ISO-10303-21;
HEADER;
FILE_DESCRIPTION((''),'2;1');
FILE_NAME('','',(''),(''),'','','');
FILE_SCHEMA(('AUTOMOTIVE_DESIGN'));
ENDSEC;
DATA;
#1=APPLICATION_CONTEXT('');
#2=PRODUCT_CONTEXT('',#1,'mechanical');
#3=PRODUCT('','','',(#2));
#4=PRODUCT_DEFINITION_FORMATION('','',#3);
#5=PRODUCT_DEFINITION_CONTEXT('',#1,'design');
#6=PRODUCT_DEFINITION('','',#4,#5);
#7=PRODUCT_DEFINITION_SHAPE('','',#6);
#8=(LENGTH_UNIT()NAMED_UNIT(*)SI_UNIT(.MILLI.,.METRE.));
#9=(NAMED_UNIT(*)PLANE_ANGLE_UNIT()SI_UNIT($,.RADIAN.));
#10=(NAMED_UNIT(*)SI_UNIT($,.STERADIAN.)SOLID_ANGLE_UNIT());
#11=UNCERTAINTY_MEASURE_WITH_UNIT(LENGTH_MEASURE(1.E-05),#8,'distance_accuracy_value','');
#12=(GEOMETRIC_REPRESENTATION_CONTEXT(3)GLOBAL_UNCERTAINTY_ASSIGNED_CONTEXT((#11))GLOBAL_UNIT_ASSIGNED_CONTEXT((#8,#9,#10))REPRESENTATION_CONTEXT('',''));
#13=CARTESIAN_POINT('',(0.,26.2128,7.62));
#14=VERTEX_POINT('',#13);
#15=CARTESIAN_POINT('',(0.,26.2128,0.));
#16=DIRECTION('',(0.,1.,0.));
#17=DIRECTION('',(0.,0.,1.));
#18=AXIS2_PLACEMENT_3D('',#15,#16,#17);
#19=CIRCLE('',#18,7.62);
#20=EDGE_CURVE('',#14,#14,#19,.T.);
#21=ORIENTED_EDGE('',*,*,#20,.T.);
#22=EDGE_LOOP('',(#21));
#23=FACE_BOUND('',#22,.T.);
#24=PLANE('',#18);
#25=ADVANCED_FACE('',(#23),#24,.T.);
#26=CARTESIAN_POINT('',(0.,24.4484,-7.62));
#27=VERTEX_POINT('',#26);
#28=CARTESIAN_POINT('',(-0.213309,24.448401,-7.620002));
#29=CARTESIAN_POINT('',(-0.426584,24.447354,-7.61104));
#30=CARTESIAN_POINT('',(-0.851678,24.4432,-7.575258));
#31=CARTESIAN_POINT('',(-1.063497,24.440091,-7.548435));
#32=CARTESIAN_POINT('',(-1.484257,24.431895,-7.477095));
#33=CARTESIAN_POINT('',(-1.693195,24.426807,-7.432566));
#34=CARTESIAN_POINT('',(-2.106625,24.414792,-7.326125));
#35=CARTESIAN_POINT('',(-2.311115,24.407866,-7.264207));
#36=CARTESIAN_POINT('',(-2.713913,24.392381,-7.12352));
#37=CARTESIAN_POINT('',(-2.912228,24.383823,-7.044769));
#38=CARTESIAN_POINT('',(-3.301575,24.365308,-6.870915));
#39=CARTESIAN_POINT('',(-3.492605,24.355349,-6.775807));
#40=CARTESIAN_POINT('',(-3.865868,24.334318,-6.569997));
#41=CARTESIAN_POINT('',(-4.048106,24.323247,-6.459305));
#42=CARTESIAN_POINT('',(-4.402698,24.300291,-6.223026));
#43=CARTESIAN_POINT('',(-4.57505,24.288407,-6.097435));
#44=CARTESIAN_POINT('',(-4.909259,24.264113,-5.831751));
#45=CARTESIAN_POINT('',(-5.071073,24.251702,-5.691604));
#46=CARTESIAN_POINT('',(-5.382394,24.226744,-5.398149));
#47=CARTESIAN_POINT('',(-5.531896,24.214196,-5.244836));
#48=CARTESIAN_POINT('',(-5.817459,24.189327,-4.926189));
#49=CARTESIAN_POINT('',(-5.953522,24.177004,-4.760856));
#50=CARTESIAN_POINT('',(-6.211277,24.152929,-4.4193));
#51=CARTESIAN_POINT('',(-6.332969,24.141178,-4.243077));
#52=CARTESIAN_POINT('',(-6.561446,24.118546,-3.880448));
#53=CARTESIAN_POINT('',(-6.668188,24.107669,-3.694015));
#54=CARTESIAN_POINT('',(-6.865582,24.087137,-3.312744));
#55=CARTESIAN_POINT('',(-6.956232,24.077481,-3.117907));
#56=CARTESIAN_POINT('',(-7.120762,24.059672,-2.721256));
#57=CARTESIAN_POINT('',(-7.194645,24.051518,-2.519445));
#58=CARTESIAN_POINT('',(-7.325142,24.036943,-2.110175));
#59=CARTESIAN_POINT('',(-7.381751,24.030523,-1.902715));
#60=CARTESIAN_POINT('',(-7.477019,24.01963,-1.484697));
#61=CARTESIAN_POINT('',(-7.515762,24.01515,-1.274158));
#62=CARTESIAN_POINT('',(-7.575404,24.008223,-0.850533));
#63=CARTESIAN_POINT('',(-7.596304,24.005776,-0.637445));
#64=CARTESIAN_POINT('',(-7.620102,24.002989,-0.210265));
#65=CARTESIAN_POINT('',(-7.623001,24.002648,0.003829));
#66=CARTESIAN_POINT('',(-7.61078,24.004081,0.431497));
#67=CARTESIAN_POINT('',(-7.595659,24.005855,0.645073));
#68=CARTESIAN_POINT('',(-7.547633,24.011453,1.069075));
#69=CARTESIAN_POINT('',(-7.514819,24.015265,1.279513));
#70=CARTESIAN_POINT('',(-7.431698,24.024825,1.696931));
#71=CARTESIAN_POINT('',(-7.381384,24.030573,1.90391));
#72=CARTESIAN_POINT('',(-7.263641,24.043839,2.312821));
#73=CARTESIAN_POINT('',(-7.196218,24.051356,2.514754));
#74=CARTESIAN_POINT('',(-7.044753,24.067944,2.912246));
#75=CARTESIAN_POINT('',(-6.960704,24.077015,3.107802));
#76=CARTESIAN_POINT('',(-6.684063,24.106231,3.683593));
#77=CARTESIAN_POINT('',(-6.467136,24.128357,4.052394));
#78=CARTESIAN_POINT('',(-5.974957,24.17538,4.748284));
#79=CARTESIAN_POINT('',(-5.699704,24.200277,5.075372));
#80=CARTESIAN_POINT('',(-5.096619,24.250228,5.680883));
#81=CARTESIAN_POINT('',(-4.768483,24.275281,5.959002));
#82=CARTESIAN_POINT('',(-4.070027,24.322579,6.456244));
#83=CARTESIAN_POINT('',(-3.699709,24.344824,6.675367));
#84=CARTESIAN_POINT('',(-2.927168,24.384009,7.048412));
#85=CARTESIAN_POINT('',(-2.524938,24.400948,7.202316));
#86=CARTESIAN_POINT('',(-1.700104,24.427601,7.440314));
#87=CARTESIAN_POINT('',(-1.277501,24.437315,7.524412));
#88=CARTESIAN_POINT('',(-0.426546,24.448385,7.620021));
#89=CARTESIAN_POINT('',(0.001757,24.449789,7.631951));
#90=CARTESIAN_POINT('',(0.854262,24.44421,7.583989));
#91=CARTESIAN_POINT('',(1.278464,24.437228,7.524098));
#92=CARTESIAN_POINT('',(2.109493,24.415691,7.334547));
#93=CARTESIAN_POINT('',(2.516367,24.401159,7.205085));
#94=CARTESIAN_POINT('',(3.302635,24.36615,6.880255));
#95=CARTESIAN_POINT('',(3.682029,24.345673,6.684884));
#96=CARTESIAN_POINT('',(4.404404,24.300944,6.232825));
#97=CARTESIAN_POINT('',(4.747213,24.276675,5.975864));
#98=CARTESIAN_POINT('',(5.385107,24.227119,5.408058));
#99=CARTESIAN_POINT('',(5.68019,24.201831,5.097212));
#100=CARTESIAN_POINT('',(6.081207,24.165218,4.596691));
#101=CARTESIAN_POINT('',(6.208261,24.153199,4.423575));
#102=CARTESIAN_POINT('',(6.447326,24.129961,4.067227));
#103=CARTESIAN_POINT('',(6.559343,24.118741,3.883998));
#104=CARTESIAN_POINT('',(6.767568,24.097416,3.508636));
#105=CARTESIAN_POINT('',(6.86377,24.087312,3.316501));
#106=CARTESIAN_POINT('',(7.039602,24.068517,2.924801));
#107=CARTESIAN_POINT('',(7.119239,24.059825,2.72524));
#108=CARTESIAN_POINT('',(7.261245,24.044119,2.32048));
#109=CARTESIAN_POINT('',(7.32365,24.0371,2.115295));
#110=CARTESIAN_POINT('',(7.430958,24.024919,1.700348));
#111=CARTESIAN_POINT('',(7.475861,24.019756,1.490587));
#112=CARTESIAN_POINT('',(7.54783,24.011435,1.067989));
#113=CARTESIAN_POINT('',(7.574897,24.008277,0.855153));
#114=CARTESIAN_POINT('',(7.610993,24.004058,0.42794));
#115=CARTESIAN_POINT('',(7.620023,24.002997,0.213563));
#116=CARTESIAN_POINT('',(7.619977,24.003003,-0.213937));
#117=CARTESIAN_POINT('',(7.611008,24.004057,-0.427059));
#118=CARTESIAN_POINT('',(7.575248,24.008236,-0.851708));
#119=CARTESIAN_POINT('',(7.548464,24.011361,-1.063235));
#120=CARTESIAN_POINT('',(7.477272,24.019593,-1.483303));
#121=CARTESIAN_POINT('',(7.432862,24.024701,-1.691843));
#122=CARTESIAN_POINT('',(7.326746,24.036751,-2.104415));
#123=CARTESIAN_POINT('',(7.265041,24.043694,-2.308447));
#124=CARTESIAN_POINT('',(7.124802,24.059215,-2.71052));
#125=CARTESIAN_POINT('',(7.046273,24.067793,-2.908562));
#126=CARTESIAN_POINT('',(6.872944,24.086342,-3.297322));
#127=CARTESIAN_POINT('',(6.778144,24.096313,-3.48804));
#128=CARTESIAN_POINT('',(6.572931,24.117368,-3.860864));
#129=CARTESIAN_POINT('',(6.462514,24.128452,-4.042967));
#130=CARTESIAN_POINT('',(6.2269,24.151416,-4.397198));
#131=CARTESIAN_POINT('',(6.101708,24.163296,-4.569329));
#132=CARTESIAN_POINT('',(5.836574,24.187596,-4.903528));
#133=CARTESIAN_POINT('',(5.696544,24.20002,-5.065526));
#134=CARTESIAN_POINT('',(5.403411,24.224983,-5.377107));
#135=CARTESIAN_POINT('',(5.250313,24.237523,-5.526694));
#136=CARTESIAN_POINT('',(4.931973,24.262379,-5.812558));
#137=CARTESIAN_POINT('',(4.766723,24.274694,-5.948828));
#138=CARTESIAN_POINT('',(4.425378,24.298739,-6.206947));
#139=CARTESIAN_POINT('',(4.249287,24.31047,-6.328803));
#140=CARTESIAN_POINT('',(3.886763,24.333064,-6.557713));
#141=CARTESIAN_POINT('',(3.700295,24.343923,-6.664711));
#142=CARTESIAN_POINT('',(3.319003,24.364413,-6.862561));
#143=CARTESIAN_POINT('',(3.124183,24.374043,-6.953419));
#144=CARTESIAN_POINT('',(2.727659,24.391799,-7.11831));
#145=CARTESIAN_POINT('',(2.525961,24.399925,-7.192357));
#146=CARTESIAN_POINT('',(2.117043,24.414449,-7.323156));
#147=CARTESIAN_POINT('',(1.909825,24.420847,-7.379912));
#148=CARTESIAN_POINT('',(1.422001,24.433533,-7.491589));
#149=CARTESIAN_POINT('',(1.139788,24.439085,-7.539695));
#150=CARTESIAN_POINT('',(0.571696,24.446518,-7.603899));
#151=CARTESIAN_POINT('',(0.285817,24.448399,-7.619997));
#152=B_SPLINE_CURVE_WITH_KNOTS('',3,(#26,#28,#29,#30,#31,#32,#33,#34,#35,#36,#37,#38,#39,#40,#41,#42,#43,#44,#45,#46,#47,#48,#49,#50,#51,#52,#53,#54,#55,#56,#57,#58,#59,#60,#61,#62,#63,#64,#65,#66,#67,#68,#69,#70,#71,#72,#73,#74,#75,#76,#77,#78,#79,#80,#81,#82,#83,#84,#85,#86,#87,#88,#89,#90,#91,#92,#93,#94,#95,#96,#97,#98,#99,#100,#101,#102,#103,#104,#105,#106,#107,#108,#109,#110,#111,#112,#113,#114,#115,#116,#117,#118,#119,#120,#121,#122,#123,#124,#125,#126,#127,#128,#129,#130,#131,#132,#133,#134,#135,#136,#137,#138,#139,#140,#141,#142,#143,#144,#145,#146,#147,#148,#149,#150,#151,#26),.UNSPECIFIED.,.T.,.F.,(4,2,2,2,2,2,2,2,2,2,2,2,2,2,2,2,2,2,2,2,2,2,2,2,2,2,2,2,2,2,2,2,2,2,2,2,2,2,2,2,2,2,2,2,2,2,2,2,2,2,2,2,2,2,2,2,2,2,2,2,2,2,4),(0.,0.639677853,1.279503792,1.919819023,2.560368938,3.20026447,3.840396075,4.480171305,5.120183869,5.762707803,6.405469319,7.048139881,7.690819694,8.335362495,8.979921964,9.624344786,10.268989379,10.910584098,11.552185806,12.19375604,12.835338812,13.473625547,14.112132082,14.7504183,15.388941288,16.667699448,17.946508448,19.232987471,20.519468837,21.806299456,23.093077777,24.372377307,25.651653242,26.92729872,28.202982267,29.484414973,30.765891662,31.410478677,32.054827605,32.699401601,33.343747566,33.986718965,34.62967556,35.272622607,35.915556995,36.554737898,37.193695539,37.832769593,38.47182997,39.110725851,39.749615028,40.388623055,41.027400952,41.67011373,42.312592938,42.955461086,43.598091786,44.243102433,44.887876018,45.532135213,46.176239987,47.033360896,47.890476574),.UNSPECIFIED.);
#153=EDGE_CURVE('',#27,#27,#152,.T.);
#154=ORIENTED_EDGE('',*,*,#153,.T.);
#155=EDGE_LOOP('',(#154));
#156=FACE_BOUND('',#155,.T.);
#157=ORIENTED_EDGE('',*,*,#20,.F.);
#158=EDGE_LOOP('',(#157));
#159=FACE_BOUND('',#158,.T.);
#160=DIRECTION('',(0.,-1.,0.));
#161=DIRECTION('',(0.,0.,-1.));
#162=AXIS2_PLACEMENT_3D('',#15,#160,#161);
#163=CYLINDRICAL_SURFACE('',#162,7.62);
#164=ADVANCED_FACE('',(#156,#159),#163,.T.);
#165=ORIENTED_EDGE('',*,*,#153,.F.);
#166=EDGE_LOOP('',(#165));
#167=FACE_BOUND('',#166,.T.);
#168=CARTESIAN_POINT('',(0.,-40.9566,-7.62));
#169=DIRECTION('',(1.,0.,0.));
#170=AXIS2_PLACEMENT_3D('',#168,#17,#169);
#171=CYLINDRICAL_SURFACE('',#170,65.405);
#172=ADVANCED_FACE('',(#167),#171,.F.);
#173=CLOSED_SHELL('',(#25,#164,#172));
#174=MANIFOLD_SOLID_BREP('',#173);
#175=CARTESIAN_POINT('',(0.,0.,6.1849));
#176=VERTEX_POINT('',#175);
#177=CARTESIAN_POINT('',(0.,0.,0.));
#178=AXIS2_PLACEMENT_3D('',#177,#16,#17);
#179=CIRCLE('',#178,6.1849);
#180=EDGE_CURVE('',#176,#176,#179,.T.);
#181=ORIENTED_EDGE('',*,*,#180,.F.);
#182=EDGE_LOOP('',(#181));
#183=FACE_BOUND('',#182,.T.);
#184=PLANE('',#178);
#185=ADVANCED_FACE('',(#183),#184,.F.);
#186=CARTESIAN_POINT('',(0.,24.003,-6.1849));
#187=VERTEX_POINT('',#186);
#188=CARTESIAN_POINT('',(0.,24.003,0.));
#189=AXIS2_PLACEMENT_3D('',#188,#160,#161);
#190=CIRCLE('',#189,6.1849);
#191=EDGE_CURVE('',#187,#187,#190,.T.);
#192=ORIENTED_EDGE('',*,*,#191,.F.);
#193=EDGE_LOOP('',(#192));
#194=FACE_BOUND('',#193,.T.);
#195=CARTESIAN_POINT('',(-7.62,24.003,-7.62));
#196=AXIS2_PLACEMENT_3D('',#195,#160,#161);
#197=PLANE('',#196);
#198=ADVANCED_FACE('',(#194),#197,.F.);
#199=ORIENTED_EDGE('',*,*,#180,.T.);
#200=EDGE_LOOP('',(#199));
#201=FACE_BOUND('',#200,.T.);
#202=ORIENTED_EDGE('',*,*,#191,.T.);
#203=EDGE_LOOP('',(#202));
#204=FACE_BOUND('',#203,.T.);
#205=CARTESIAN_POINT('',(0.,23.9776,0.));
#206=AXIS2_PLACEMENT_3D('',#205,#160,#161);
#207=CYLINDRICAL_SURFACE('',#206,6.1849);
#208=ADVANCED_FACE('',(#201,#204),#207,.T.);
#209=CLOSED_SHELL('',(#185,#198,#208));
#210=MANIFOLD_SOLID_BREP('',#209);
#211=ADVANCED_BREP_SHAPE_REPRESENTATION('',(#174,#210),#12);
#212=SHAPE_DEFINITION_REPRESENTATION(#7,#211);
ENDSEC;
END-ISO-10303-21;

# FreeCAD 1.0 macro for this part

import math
import FreeCAD as App
import Part
import Sketcher
Q = App.Units.Quantity

doc = App.newDocument("Part")
body = doc.addObject("PartDesign::Body", "Body")
body.AllowCompound = True

sketch1 = body.newObject("Sketcher::SketchObject", "Sketch")
sketch1.AttachmentSupport = (doc.getObject("XZ_Plane"), [""])
sketch1.MapMode = "FlatFace"
sketch1.addGeometry(Part.Circle(App.Vector(0, 0, 0), App.Vector(0, 0, 1), 6), False)
sketch1.addConstraint([
    Sketcher.Constraint("Coincident", 0, 3, -1, 1),
    Sketcher.Constraint("Diameter", 0, Q("0.487 in")),
])
pad1 = body.newObject("PartDesign::Pad", "Pad")
pad1.Profile = sketch1
pad1.Length = Q("0.944 in")
pad1.Reversed = True

sketch2 = body.newObject("Sketcher::SketchObject", "Sketch001")
sketch2.AttachmentSupport = (doc.getObject("XZ_Plane"), [""])
sketch2.MapMode = "FlatFace"
sketch2.AttachmentOffset = App.Placement(App.Vector(0, 0, -0.944 * 25.4), App.Rotation())
sketch2.addGeometry(Part.Circle(App.Vector(0, 0, 0), App.Vector(0, 0, 1), 8), False)
sketch2.addConstraint([
    Sketcher.Constraint("Coincident", 0, 3, -1, 1),
    Sketcher.Constraint("Diameter", 0, Q("0.6 in")),
])
pad2 = body.newObject("PartDesign::Pad", "Pad001")
pad2.Profile = sketch2
pad2.Length = Q("0.088 in")
pad2.Reversed = True

sketch3 = body.newObject("Sketcher::SketchObject", "Sketch002")
sketch3.AttachmentSupport = (doc.getObject("XZ_Plane"), [""])
sketch3.MapMode = "FlatFace"
sketch3.AttachmentOffset = App.Placement(App.Vector(0, 0, -0.944 * 25.4), App.Rotation())
sketch3.addGeometry([
    Part.Circle(App.Vector(0, 0, 0), App.Vector(0, 0, 1), 8),
    Part.Circle(App.Vector(0, 0, 0), App.Vector(0, 0, 1), 6),
], False)
sketch3.addConstraint([
    Sketcher.Constraint("Coincident", 0, 3, -1, 1),
    Sketcher.Constraint("Coincident", 1, 3, -1, 1),
    Sketcher.Constraint("Diameter", 0, Q("0.6 in")),
    Sketcher.Constraint("Diameter", 1, Q("0.487 in")),
])
pocket1 = body.newObject("PartDesign::Pocket", "Pocket")
pocket1.Profile = sketch3
pocket1.Type = "TwoLengths"
pocket1.Length = 24.9776
pocket1.Length2 = Q("0.001 in")
pocket1.Reversed = True

sketch4 = body.newObject("Sketcher::SketchObject", "Sketch003")
sketch4.AttachmentSupport = (doc.getObject("XY_Plane"), [""])
sketch4.MapMode = "FlatFace"
sketch4.addGeometry([
    Part.LineSegment(App.Vector(-8, 24, 0), App.Vector(8, 24, 0)),
    Part.ArcOfCircle(Part.Circle(App.Vector(0, -41, 0), App.Vector(0, 0, 1), 65), math.radians(83.31), math.radians(96.69)),
], False)
sketch4.addConstraint([
    Sketcher.Constraint("Coincident", 0, 1, 1, 2),
    Sketcher.Constraint("Coincident", 1, 1, 0, 2),
    Sketcher.Constraint("Horizontal", 0),
    Sketcher.Constraint("PointOnObject", 1, 3, -2),
    Sketcher.Constraint("DistanceX", 0, 1, 0, 2, Q("0.6 in")),
    Sketcher.Constraint("Radius", 1, Q("2.575 in")),
    Sketcher.Constraint("DistanceY", -1, 1, 0, 1, Q("0.945 in")),
])
pocket2 = body.newObject("PartDesign::Pocket", "Pocket001")
pocket2.Profile = sketch4
pocket2.Type = "ThroughAll"
pocket2.Midplane = True

doc.recompute()
